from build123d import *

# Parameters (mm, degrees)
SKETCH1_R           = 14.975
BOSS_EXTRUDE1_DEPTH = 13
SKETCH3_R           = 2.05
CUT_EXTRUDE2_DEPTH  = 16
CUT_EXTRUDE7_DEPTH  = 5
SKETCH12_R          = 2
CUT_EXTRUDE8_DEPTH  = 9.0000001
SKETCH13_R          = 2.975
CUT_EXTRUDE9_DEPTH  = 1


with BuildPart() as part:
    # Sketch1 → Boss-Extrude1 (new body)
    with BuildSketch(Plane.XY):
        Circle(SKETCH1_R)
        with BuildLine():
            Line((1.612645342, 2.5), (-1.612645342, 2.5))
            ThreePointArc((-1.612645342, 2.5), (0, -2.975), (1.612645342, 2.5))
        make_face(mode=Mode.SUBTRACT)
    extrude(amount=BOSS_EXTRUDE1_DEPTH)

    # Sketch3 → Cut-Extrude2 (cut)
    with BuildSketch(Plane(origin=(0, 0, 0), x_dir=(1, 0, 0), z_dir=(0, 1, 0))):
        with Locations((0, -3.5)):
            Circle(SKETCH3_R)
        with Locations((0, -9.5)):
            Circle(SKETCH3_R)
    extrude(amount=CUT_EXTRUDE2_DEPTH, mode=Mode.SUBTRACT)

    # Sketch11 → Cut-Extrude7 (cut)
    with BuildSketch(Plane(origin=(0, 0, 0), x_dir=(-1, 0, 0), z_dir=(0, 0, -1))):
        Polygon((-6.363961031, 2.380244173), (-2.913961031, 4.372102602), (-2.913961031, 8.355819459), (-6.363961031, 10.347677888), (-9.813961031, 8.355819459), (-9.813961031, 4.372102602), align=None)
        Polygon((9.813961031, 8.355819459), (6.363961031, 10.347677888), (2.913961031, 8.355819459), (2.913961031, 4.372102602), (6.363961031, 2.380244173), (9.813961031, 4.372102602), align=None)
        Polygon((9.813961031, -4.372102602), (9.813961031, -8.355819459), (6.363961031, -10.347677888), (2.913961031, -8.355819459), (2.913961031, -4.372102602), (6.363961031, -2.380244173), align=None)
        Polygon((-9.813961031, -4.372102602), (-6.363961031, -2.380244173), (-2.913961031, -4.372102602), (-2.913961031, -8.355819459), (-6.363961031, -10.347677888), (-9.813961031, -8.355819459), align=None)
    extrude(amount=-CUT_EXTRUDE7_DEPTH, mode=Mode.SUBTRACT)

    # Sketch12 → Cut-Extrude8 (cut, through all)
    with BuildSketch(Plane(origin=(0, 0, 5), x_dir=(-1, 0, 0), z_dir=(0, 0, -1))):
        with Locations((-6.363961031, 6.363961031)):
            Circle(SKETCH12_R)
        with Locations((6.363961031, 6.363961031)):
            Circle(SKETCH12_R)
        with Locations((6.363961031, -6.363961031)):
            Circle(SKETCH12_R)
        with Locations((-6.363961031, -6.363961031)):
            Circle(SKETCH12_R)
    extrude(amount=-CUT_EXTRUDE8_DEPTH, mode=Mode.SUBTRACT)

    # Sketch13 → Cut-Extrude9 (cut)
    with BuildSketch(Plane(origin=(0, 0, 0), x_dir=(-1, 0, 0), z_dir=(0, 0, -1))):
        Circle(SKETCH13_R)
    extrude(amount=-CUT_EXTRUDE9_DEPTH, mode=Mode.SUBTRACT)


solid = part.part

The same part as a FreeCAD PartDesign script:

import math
import FreeCAD as App
import Part
import Sketcher

V = App.Vector
Q = App.Units.Quantity

doc = App.newDocument("Part")
params = doc.addObject("Spreadsheet::Sheet", "Params")
for row, (alias, value) in enumerate([
    ("sketch1_diameter", "29.95 mm"),
    ("pad1_length", "13 mm"),
    ("sketch2_diameter", "4.1 mm"),
    ("pocket1_length", "16 mm"),
    ("pocket2_length", "5 mm"),
    ("sketch4_diameter", "4 mm"),
    ("sketch5_diameter", "5.95 mm"),
    ("pocket4_length", "1 mm"),
], start=1):
    params.set(f"A{row}", alias)
    params.set(f"B{row}", "=" + value)
    params.setAlias(f"B{row}", alias)

body = doc.addObject("PartDesign::Body", "Body")

# Sketch on XY plane
sketch1 = doc.addObject("Sketcher::SketchObject", "Sketch")
body.addObject(sketch1)
sketch1.AttachmentSupport = (doc.XY_Plane, [""])
sketch1.MapMode = "FlatFace"
sketch1.addGeometry([
    Part.Circle(V(0, 0, 0), V(0, 0, 1), 15),
    Part.LineSegment(V(-1.6, 2.5, 0), V(1.6, 2.5, 0)),
    Part.ArcOfCircle(Part.Circle(V(0, 0, 0), V(0, 0, 1), 3), math.radians(123), math.radians(417)),
], False)
sketch1.addConstraint([
    Sketcher.Constraint("Coincident", 1, 1, 2, 1),
    Sketcher.Constraint("Coincident", 2, 2, 1, 2),
    Sketcher.Constraint("Horizontal", 1),
    Sketcher.Constraint("Coincident", 0, 3, -1, 1),
    Sketcher.Constraint("Coincident", 2, 3, -1, 1),
    Sketcher.Constraint("Diameter", 0, Q("29.95 mm")),
    Sketcher.Constraint("Radius", 2, Q("2.975 mm")),
    Sketcher.Constraint("DistanceY", -1, 1, 1, 1, Q("2.5 mm")),
])
sketch1.setExpression("Constraints[5]", "Params.sketch1_diameter")
pad1 = doc.addObject("PartDesign::Pad", "Pad")
body.addObject(pad1)
pad1.Profile = sketch1
pad1.setExpression("Length", "Params.pad1_length")

# Sketch on XZ plane
sketch2 = doc.addObject("Sketcher::SketchObject", "Sketch001")
body.addObject(sketch2)
sketch2.AttachmentSupport = (doc.XZ_Plane, [""])
sketch2.MapMode = "FlatFace"
sketch2.addGeometry([
    Part.Circle(V(0, 3.5, 0), V(0, 0, 1), 2),
    Part.Circle(V(0, 9.5, 0), V(0, 0, 1), 2),
], False)
sketch2.addConstraint([
    Sketcher.Constraint("Equal", 0, 1),
    Sketcher.Constraint("PointOnObject", 0, 3, -2),
    Sketcher.Constraint("PointOnObject", 1, 3, -2),
    Sketcher.Constraint("Diameter", 0, Q("4.1 mm")),
    Sketcher.Constraint("DistanceY", 0, 3, 1, 3, Q("6 mm")),
    Sketcher.Constraint("DistanceY", -1, 1, 0, 3, Q("3.5 mm")),
])
sketch2.setExpression("Constraints[3]", "Params.sketch2_diameter")
pocket1 = doc.addObject("PartDesign::Pocket", "Pocket")
body.addObject(pocket1)
pocket1.Profile = sketch2
pocket1.setExpression("Length", "Params.pocket1_length")

# Sketch on XY plane
sketch3 = doc.addObject("Sketcher::SketchObject", "Sketch002")
body.addObject(sketch3)
sketch3.AttachmentSupport = (doc.XY_Plane, [""])
sketch3.MapMode = "FlatFace"
sketch3.addGeometry([
    Part.LineSegment(V(6.4, 2.4, 0), V(2.9, 4.4, 0)),  # 0
    Part.LineSegment(V(2.9, 4.4, 0), V(2.9, 8.4, 0)),  # 1
    Part.LineSegment(V(2.9, 8.4, 0), V(6.4, 10.3, 0)),  # 2
    Part.LineSegment(V(6.4, 10.3, 0), V(9.8, 8.4, 0)),  # 3
    Part.LineSegment(V(9.8, 8.4, 0), V(9.8, 4.4, 0)),  # 4
    Part.LineSegment(V(9.8, 4.4, 0), V(6.4, 2.4, 0)),  # 5
    Part.LineSegment(V(-9.8, 8.4, 0), V(-6.4, 10.3, 0)),  # 6
    Part.LineSegment(V(-6.4, 10.3, 0), V(-2.9, 8.4, 0)),  # 7
    Part.LineSegment(V(-2.9, 8.4, 0), V(-2.9, 4.4, 0)),  # 8
    Part.LineSegment(V(-2.9, 4.4, 0), V(-6.4, 2.4, 0)),  # 9
    Part.LineSegment(V(-6.4, 2.4, 0), V(-9.8, 4.4, 0)),  # 10
    Part.LineSegment(V(-9.8, 4.4, 0), V(-9.8, 8.4, 0)),  # 11
    Part.LineSegment(V(-9.8, -8.4, 0), V(-9.8, -4.4, 0)),  # 12
    Part.LineSegment(V(-9.8, -4.4, 0), V(-6.4, -2.4, 0)),  # 13
    Part.LineSegment(V(-6.4, -2.4, 0), V(-2.9, -4.4, 0)),  # 14
    Part.LineSegment(V(-2.9, -4.4, 0), V(-2.9, -8.4, 0)),  # 15
    Part.LineSegment(V(-2.9, -8.4, 0), V(-6.4, -10.3, 0)),  # 16
    Part.LineSegment(V(-6.4, -10.3, 0), V(-9.8, -8.4, 0)),  # 17
    Part.LineSegment(V(6.4, -2.4, 0), V(9.8, -4.4, 0)),  # 18
    Part.LineSegment(V(9.8, -4.4, 0), V(9.8, -8.4, 0)),  # 19
    Part.LineSegment(V(9.8, -8.4, 0), V(6.4, -10.3, 0)),  # 20
    Part.LineSegment(V(6.4, -10.3, 0), V(2.9, -8.4, 0)),  # 21
    Part.LineSegment(V(2.9, -8.4, 0), V(2.9, -4.4, 0)),  # 22
    Part.LineSegment(V(2.9, -4.4, 0), V(6.4, -2.4, 0)),  # 23
], False)
sketch3.addConstraint([
    Sketcher.Constraint("Coincident", 0, 2, 1, 1),
    Sketcher.Constraint("Coincident", 1, 2, 2, 1),
    Sketcher.Constraint("Coincident", 2, 2, 3, 1),
    Sketcher.Constraint("Coincident", 3, 2, 4, 1),
    Sketcher.Constraint("Coincident", 4, 2, 5, 1),
    Sketcher.Constraint("Coincident", 5, 2, 0, 1),
    Sketcher.Constraint("Coincident", 6, 2, 7, 1),
    Sketcher.Constraint("Coincident", 7, 2, 8, 1),
    Sketcher.Constraint("Coincident", 8, 2, 9, 1),
    Sketcher.Constraint("Coincident", 9, 2, 10, 1),
    Sketcher.Constraint("Coincident", 10, 2, 11, 1),
    Sketcher.Constraint("Coincident", 11, 2, 6, 1),
    Sketcher.Constraint("Coincident", 12, 2, 13, 1),
    Sketcher.Constraint("Coincident", 13, 2, 14, 1),
    Sketcher.Constraint("Coincident", 14, 2, 15, 1),
    Sketcher.Constraint("Coincident", 15, 2, 16, 1),
    Sketcher.Constraint("Coincident", 16, 2, 17, 1),
    Sketcher.Constraint("Coincident", 17, 2, 12, 1),
    Sketcher.Constraint("Coincident", 18, 2, 19, 1),
    Sketcher.Constraint("Coincident", 19, 2, 20, 1),
    Sketcher.Constraint("Coincident", 20, 2, 21, 1),
    Sketcher.Constraint("Coincident", 21, 2, 22, 1),
    Sketcher.Constraint("Coincident", 22, 2, 23, 1),
    Sketcher.Constraint("Coincident", 23, 2, 18, 1),
    Sketcher.Constraint("Vertical", 1),
    Sketcher.Constraint("Vertical", 4),
    Sketcher.Constraint("Vertical", 8),
    Sketcher.Constraint("Vertical", 11),
    Sketcher.Constraint("Vertical", 12),
    Sketcher.Constraint("Vertical", 15),
    Sketcher.Constraint("Vertical", 19),
    Sketcher.Constraint("Vertical", 22),
    Sketcher.Constraint("Symmetric", 4, 2, 12, 2, -1, 1),
    Sketcher.Constraint("Symmetric", 5, 2, 13, 2, -1, 1),
    Sketcher.Constraint("Symmetric", 0, 2, 14, 2, -1, 1),
    Sketcher.Constraint("Symmetric", 2, 2, 16, 2, -1, 1),
    Sketcher.Constraint("Symmetric", 10, 2, 18, 2, -1, 1),
    Sketcher.Constraint("Symmetric", 6, 2, 20, 2, -1, 1),
    Sketcher.Constraint("Symmetric", 7, 2, 21, 2, -1, 1),
    Sketcher.Constraint("Symmetric", 9, 2, 23, 2, -1, 1),
    Sketcher.Constraint("Symmetric", 2, 2, 6, 2, -2),
    Sketcher.Constraint("Symmetric", 1, 2, 7, 2, -2),
    Sketcher.Constraint("Symmetric", 5, 2, 9, 2, -2),
    Sketcher.Constraint("Symmetric", 4, 2, 10, 2, -2),
    Sketcher.Constraint("Parallel", 0, 3),
    Sketcher.Constraint("Parallel", 2, 5),
    Sketcher.Constraint("Parallel", 5, 6),
    Sketcher.Constraint("Parallel", 3, 7),
    Sketcher.Constraint("Parallel", 6, 9),
    Sketcher.Constraint("Parallel", 13, 16),
    Sketcher.Constraint("Parallel", 14, 17),
    Sketcher.Constraint("Parallel", 16, 20),
    Sketcher.Constraint("Parallel", 20, 23),
    Sketcher.Constraint("Horizontal", 1, 2, 3, 2),
    Sketcher.Constraint("Horizontal", 0, 2, 4, 2),
    Sketcher.Constraint("Angle", 0, Q("150 deg")),
    Sketcher.Constraint("DistanceX", 1, 2, 3, 2, Q("6.9 mm")),
    Sketcher.Constraint("DistanceY", 1, 1, 1, 2, Q("3.983717 mm")),
    Sketcher.Constraint("DistanceX", -1, 1, 0, 2, Q("2.913961 mm")),
    Sketcher.Constraint("DistanceY", -1, 1, 1, 2, Q("8.355819 mm")),
])
pocket2 = doc.addObject("PartDesign::Pocket", "Pocket001")
body.addObject(pocket2)
pocket2.Profile = sketch3
pocket2.setExpression("Length", "Params.pocket2_length")
pocket2.Reversed = True

# Sketch on XY plane
sketch4 = doc.addObject("Sketcher::SketchObject", "Sketch003")
body.addObject(sketch4)
sketch4.AttachmentSupport = (doc.XY_Plane, [""])
sketch4.MapMode = "FlatFace"
sketch4.AttachmentOffset = App.Placement(V(0, 0, 5), App.Rotation())
sketch4.addGeometry([
    Part.Circle(V(6.4, 6.4, 0), V(0, 0, 1), 2),
    Part.Circle(V(-6.4, 6.4, 0), V(0, 0, 1), 2),
    Part.Circle(V(-6.4, -6.4, 0), V(0, 0, 1), 2),
    Part.Circle(V(6.4, -6.4, 0), V(0, 0, 1), 2),
], False)
sketch4.addConstraint([
    Sketcher.Constraint("Equal", 0, 1),
    Sketcher.Constraint("Equal", 1, 2),
    Sketcher.Constraint("Equal", 2, 3),
    Sketcher.Constraint("Symmetric", 0, 3, 2, 3, -1, 1),
    Sketcher.Constraint("Symmetric", 1, 3, 3, 3, -1, 1),
    Sketcher.Constraint("Symmetric", 0, 3, 1, 3, -2),
    Sketcher.Constraint("Diameter", 0, Q("4 mm")),
    Sketcher.Constraint("DistanceX", -1, 1, 0, 3, Q("6.363961 mm")),
    Sketcher.Constraint("DistanceY", -1, 1, 0, 3, Q("6.363961 mm")),
])
sketch4.setExpression("Constraints[6]", "Params.sketch4_diameter")
pocket3 = doc.addObject("PartDesign::Pocket", "Pocket002")
body.addObject(pocket3)
pocket3.Profile = sketch4
pocket3.Type = "ThroughAll"
pocket3.Reversed = True

# Sketch on XY plane
sketch5 = doc.addObject("Sketcher::SketchObject", "Sketch004")
body.addObject(sketch5)
sketch5.AttachmentSupport = (doc.XY_Plane, [""])
sketch5.MapMode = "FlatFace"
sketch5.addGeometry(Part.Circle(V(0, 0, 0), V(0, 0, 1), 3), False)
sketch5.addConstraint([
    Sketcher.Constraint("Coincident", 0, 3, -1, 1),
    Sketcher.Constraint("Diameter", 0, Q("5.95 mm")),
])
sketch5.setExpression("Constraints[1]", "Params.sketch5_diameter")
pocket4 = doc.addObject("PartDesign::Pocket", "Pocket003")
body.addObject(pocket4)
pocket4.Profile = sketch5
pocket4.setExpression("Length", "Params.pocket4_length")
pocket4.Reversed = True

doc.recompute()
